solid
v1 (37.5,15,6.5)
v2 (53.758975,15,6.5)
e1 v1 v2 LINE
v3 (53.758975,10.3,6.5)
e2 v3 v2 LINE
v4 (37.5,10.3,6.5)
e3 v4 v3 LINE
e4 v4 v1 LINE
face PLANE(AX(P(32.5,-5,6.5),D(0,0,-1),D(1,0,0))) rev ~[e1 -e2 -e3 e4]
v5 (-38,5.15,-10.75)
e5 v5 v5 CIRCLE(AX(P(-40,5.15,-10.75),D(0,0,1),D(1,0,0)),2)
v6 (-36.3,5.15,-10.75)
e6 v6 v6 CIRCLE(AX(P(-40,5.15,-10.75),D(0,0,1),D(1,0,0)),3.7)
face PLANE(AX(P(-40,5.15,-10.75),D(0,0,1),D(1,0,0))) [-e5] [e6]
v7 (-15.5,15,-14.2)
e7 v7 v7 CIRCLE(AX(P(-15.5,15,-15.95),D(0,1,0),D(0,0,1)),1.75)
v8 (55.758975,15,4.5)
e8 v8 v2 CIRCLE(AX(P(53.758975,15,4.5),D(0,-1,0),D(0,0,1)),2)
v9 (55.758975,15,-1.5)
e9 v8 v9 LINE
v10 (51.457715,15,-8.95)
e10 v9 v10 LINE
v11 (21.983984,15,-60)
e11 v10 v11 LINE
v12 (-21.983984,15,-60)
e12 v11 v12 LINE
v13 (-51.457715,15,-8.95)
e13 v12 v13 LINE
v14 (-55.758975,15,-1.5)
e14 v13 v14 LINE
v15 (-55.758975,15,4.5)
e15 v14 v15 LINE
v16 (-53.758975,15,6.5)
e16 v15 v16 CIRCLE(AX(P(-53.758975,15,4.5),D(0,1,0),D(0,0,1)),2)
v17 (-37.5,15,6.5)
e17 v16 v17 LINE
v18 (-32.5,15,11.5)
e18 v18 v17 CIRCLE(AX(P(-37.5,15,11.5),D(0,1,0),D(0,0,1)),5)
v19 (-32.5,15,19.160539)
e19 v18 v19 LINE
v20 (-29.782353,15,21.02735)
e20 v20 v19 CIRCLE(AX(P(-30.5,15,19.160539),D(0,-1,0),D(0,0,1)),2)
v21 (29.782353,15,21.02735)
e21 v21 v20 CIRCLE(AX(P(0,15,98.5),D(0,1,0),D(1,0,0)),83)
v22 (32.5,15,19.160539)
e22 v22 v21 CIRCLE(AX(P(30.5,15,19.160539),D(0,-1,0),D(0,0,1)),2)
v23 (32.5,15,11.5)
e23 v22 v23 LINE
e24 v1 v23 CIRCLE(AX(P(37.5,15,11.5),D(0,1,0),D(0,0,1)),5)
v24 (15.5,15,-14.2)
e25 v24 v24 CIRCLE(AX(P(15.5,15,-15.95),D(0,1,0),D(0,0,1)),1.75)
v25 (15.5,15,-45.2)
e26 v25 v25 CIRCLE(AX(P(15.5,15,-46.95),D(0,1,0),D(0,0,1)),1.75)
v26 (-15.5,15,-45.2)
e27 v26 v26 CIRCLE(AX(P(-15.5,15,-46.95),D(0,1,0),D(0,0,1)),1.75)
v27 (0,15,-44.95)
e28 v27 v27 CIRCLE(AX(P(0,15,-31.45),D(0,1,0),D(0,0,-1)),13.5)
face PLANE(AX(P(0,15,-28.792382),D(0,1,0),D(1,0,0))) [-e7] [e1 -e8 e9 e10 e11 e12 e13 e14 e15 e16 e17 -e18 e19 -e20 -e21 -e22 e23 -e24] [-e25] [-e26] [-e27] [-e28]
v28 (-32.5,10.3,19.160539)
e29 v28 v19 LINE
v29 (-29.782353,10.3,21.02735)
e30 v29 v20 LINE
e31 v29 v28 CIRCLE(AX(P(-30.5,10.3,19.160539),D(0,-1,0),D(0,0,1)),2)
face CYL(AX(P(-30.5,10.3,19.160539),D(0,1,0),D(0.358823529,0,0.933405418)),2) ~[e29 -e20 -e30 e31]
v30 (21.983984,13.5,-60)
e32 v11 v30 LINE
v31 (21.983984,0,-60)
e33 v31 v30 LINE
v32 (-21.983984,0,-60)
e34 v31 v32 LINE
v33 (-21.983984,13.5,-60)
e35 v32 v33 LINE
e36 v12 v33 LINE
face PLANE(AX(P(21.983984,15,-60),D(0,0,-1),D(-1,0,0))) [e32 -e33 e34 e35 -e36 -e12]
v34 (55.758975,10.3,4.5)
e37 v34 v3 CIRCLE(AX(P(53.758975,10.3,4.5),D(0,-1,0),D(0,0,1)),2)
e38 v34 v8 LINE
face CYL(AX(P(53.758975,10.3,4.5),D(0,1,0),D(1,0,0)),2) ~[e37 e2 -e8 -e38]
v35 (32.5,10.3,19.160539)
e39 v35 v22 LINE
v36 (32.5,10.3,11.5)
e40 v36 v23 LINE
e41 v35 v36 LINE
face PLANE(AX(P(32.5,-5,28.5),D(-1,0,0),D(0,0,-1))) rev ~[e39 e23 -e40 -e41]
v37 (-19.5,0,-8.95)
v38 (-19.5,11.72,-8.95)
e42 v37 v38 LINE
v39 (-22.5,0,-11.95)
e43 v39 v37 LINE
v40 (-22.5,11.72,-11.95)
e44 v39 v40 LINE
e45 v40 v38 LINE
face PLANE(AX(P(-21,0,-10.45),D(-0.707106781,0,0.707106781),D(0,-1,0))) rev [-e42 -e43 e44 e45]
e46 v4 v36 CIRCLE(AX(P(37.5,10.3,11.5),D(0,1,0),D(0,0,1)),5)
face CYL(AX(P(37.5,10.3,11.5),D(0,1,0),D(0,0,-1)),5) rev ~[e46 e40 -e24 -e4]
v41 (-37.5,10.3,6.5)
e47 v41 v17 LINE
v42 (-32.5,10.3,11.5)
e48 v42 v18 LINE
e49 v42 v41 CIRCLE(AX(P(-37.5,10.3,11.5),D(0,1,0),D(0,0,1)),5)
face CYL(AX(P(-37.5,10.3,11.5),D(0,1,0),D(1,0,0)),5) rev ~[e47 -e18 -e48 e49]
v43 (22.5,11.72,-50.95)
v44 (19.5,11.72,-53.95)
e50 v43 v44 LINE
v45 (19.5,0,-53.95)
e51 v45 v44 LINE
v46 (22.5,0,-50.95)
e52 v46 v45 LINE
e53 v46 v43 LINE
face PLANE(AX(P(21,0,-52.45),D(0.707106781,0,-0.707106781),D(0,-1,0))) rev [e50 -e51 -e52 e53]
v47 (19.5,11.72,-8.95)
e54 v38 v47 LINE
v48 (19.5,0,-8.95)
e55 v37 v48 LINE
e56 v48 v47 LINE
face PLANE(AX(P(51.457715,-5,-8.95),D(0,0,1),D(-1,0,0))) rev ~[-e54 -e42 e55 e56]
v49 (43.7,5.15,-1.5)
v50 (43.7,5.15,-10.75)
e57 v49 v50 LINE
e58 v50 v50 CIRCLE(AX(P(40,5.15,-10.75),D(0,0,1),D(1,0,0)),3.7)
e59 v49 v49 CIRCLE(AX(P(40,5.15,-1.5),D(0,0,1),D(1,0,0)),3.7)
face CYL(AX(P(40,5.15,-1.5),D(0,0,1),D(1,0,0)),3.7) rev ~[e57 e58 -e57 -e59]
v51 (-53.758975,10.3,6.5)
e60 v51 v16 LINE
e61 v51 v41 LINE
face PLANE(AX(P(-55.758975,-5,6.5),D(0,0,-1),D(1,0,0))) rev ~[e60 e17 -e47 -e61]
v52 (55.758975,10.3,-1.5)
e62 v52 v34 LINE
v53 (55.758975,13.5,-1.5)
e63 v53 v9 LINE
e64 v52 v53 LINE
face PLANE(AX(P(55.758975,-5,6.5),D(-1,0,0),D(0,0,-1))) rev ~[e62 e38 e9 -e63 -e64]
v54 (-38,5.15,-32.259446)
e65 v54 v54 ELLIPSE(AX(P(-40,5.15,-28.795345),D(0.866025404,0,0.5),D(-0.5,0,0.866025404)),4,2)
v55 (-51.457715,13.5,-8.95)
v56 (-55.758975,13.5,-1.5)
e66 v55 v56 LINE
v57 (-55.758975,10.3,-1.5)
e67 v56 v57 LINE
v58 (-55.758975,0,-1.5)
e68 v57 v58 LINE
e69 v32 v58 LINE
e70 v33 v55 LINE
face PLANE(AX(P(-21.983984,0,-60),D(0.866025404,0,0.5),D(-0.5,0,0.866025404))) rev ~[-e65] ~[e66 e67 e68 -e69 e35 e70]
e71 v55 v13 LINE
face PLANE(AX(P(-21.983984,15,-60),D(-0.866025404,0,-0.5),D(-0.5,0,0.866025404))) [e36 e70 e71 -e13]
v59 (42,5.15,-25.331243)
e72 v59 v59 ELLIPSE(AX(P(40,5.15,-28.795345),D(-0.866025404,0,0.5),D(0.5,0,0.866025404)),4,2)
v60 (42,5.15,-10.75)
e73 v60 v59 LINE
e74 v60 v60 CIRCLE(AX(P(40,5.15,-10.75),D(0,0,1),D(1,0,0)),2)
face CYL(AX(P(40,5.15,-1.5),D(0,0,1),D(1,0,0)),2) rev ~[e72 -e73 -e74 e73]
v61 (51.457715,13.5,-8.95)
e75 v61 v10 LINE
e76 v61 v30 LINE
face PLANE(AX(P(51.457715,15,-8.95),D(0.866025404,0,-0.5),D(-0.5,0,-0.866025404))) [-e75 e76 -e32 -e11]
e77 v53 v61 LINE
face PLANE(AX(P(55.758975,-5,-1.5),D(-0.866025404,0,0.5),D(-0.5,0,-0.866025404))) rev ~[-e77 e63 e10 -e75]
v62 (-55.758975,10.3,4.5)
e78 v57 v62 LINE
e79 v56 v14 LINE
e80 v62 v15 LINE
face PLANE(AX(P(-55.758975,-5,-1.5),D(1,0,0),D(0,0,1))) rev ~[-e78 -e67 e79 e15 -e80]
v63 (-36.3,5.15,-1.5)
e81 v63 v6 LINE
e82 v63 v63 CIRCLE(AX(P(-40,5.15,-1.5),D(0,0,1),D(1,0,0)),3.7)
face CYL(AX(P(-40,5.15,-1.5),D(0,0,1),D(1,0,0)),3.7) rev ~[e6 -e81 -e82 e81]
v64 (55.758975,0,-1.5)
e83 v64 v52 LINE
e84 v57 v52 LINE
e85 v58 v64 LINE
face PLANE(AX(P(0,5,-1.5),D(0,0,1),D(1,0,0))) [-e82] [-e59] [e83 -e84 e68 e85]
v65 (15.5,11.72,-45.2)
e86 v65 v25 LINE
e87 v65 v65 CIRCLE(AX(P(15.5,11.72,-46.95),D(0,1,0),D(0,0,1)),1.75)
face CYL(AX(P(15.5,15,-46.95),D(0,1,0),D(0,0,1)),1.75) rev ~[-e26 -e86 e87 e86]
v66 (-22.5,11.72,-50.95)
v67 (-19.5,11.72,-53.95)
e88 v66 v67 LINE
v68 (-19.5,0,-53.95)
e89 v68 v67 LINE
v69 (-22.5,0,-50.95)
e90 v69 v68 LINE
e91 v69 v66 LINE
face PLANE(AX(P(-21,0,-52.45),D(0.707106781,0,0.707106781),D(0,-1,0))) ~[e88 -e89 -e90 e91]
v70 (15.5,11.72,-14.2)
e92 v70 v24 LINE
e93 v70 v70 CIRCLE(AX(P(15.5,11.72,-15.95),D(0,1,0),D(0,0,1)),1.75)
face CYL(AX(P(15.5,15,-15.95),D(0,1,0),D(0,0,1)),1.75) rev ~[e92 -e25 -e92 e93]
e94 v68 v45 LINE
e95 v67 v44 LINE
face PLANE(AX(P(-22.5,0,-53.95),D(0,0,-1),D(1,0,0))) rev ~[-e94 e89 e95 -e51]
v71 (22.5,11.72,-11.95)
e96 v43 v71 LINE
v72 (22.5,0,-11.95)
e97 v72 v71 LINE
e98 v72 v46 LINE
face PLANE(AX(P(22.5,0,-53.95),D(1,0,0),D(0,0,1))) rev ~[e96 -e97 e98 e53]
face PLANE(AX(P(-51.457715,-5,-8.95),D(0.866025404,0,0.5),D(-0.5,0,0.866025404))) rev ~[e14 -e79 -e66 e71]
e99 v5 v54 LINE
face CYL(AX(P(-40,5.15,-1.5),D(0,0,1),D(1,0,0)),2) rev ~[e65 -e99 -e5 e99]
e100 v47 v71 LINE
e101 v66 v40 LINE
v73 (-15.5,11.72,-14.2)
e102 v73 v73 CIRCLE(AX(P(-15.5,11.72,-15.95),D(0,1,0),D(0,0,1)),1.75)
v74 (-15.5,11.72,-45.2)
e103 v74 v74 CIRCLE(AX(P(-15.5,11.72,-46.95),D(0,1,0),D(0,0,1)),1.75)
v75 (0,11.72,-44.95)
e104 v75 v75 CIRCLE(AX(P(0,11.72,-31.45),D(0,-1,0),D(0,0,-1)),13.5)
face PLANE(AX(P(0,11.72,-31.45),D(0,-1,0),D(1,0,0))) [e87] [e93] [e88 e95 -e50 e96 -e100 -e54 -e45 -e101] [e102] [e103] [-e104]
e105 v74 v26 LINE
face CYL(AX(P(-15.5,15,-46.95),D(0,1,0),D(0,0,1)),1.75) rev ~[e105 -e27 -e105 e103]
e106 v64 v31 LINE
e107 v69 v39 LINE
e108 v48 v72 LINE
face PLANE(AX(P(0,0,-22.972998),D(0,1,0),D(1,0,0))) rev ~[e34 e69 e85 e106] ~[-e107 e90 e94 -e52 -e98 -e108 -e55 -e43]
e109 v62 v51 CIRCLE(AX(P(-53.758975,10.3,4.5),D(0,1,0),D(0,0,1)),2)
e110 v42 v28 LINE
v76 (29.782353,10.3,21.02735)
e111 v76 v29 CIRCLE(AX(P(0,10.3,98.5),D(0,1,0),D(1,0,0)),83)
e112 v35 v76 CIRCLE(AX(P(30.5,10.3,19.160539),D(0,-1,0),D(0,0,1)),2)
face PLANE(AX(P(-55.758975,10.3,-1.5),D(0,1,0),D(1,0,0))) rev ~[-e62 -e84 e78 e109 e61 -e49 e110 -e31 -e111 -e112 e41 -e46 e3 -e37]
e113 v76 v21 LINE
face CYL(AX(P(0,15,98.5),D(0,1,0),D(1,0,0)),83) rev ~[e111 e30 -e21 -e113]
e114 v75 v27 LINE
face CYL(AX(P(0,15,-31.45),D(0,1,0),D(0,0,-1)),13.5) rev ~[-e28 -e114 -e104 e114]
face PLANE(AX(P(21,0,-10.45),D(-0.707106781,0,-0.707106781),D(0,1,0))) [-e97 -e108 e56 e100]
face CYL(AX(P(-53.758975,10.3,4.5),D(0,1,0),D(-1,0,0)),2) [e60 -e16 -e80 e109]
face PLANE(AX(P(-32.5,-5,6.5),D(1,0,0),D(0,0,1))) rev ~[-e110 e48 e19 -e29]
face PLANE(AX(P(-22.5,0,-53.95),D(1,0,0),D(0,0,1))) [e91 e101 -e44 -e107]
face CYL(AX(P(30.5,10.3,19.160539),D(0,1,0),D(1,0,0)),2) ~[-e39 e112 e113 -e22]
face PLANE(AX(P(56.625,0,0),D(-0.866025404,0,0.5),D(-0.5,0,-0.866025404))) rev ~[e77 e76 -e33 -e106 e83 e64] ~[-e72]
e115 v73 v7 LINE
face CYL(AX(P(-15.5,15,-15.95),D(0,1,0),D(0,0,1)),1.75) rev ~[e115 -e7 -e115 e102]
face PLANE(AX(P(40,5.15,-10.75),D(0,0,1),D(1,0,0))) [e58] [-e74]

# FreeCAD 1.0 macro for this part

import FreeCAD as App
import Part
import Sketcher
Q = App.Units.Quantity


def edges_at(feature, points):
    """Names of the edges that pass closest to the given points."""
    edges = feature.Shape.Edges
    near = lambda p: min(range(len(edges)), key=lambda i: edges[i].distToShape(Part.Vertex(*p))[0])
    return sorted({f"Edge{near(p) + 1}" for p in points})

doc = App.newDocument("Part")
body = doc.addObject("PartDesign::Body", "Body")

# Sketch on XZ plane
sketch1 = doc.addObject("Sketcher::SketchObject", "Sketch")
body.addObject(sketch1)
sketch1.AttachmentSupport = (doc.XZ_Plane, [""])
sketch1.MapMode = "FlatFace"
sketch1.addGeometry(Part.LineSegment(App.Vector(-57, 0, 0), App.Vector(57, 0, 0)), False)
sketch1.addGeometry(Part.LineSegment(App.Vector(57, 0, 0), App.Vector(22, -60, 0)), False)
sketch1.addGeometry(Part.LineSegment(App.Vector(22, -60, 0), App.Vector(-22, -60, 0)), False)
sketch1.addGeometry(Part.LineSegment(App.Vector(-22, -60, 0), App.Vector(-57, 0, 0)), False)
sketch1.addConstraint(Sketcher.Constraint("Coincident", 0, 2, 1, 1))
sketch1.addConstraint(Sketcher.Constraint("Coincident", 1, 2, 2, 1))
sketch1.addConstraint(Sketcher.Constraint("Coincident", 2, 2, 3, 1))
sketch1.addConstraint(Sketcher.Constraint("Coincident", 3, 2, 0, 1))
sketch1.addConstraint(Sketcher.Constraint("Horizontal", 0))
sketch1.addConstraint(Sketcher.Constraint("Horizontal", 2))
sketch1.addConstraint(Sketcher.Constraint("Symmetric", 0, 2, 3, 2, -1, 1))
sketch1.addConstraint(Sketcher.Constraint("Equal", 1, 3))
sketch1.addConstraint(Sketcher.Constraint("Angle", 1, Q("-120 deg")))
sketch1.addConstraint(Sketcher.Constraint("DistanceY", 1, 2, -1, 1, Q("60 mm")))
sketch1.addConstraint(Sketcher.Constraint("DistanceX", 0, 1, 0, 2, Q("113.25 mm")))
pad1 = doc.addObject("PartDesign::Pad", "Pad")
body.addObject(pad1)
pad1.Profile = sketch1
pad1.Length = 13.5
pad1.Reversed = True

# Sketch on XZ plane
sketch2 = doc.addObject("Sketcher::SketchObject", "Sketch001")
body.addObject(sketch2)
sketch2.AttachmentSupport = (doc.XZ_Plane, [""])
sketch2.MapMode = "FlatFace"
sketch2.addGeometry(Part.LineSegment(App.Vector(-22, -9, 0), App.Vector(-22, -54, 0)), False)
sketch2.addGeometry(Part.LineSegment(App.Vector(-22, -54, 0), App.Vector(22, -54, 0)), False)
sketch2.addGeometry(Part.LineSegment(App.Vector(22, -54, 0), App.Vector(22, -9, 0)), False)
sketch2.addGeometry(Part.LineSegment(App.Vector(22, -9, 0), App.Vector(-22, -9, 0)), False)
sketch2.addConstraint(Sketcher.Constraint("Coincident", 0, 2, 1, 1))
sketch2.addConstraint(Sketcher.Constraint("Coincident", 1, 2, 2, 1))
sketch2.addConstraint(Sketcher.Constraint("Coincident", 2, 2, 3, 1))
sketch2.addConstraint(Sketcher.Constraint("Coincident", 3, 2, 0, 1))
sketch2.addConstraint(Sketcher.Constraint("Vertical", 0))
sketch2.addConstraint(Sketcher.Constraint("Horizontal", 1))
sketch2.addConstraint(Sketcher.Constraint("Vertical", 2))
sketch2.addConstraint(Sketcher.Constraint("Horizontal", 3))
sketch2.addConstraint(Sketcher.Constraint("Equal", 3, 0))
sketch2.addConstraint(Sketcher.Constraint("DistanceX", 1, 1, 1, 2, Q("45 mm")))
sketch2.addConstraint(Sketcher.Constraint("DistanceX", 0, 2, -1, 1, Q("22.5 mm")))
sketch2.addConstraint(Sketcher.Constraint("DistanceY", 0, 2, -1, 1, Q("53.95 mm")))
pocket1 = doc.addObject("PartDesign::Pocket", "Pocket")
body.addObject(pocket1)
pocket1.Profile = sketch2
pocket1.Length = 11.72

# Sketch on XZ plane
sketch3 = doc.addObject("Sketcher::SketchObject", "Sketch002")
body.addObject(sketch3)
sketch3.AttachmentSupport = (doc.XZ_Plane, [""])
sketch3.MapMode = "FlatFace"
sketch3.AttachmentOffset = App.Placement(App.Vector(0, 0, -11.72), App.Rotation())
sketch3.addGeometry(Part.Circle(App.Vector(0, -31, 0), App.Vector(0, 0, 1), 14), False)
sketch3.addConstraint(Sketcher.Constraint("PointOnObject", 0, 3, -2))
sketch3.addConstraint(Sketcher.Constraint("Diameter", 0, Q("27 mm")))
sketch3.addConstraint(Sketcher.Constraint("DistanceY", 0, 3, -1, 1, Q("31.45 mm")))
pocket2 = doc.addObject("PartDesign::Pocket", "Pocket001")
body.addObject(pocket2)
pocket2.Profile = sketch3
pocket2.Type = "ThroughAll"
doc.recompute()

chamfer = doc.addObject("PartDesign::Chamfer", "Chamfer")
body.addObject(chamfer)
chamfer.Base = (pocket2, edges_at(pocket2, [
    (-22.5, 5.86, -8.95),
    (-22.5, 5.86, -53.95),
    (22.5, 5.86, -53.95),
    (22.5, 5.86, -8.95),
]))
chamfer.Size = 3

# Sketch on XZ plane
sketch4 = doc.addObject("Sketcher::SketchObject", "Sketch003")
body.addObject(sketch4)
sketch4.AttachmentSupport = (doc.XZ_Plane, [""])
sketch4.MapMode = "FlatFace"
sketch4.AttachmentOffset = App.Placement(App.Vector(0, 0, -13.5), App.Rotation())
sketch4.addGeometry(Part.LineSegment(App.Vector(-56.6, -1.5, 0), App.Vector(-56.6, 0, 0)), False)
sketch4.addGeometry(Part.LineSegment(App.Vector(-56.6, 0, 0), App.Vector(56.6, 0, 0)), False)
sketch4.addGeometry(Part.LineSegment(App.Vector(56.6, 0, 0), App.Vector(56.6, -1.5, 0)), False)
sketch4.addGeometry(Part.LineSegment(App.Vector(56.6, -1.5, 0), App.Vector(-56.6, -1.5, 0)), False)
sketch4.addConstraint(Sketcher.Constraint("Coincident", 0, 2, 1, 1))
sketch4.addConstraint(Sketcher.Constraint("Coincident", 1, 2, 2, 1))
sketch4.addConstraint(Sketcher.Constraint("Coincident", 2, 2, 3, 1))
sketch4.addConstraint(Sketcher.Constraint("Coincident", 3, 2, 0, 1))
sketch4.addConstraint(Sketcher.Constraint("Vertical", 0))
sketch4.addConstraint(Sketcher.Constraint("Horizontal", 1))
sketch4.addConstraint(Sketcher.Constraint("Vertical", 2))
sketch4.addConstraint(Sketcher.Constraint("Horizontal", 3))
sketch4.addConstraint(Sketcher.Constraint("Symmetric", 0, 2, 1, 2, -1, 1))
sketch4.addConstraint(Sketcher.Constraint("DistanceY", 0, 1, 0, 2, Q("1.5 mm")))
sketch4.addConstraint(Sketcher.Constraint("DistanceX", 1, 1, 1, 2, Q("113.25 mm")))
pocket3 = doc.addObject("PartDesign::Pocket", "Pocket002")
body.addObject(pocket3)
pocket3.Profile = sketch4
pocket3.Type = "ThroughAll"
pocket3.Reversed = True

# Sketch on XZ plane
sketch5 = doc.addObject("Sketcher::SketchObject", "Sketch004")
body.addObject(sketch5)
sketch5.AttachmentSupport = (doc.XZ_Plane, [""])
sketch5.MapMode = "FlatFace"
sketch5.AttachmentOffset = App.Placement(App.Vector(0, 0, -13.5), App.Rotation())
sketch5.addGeometry(Part.Circle(App.Vector(15.5, -47, 0), App.Vector(0, 0, 1), 1.8), False)
sketch5.addGeometry(Part.Circle(App.Vector(15.5, -15.9, 0), App.Vector(0, 0, 1), 1.8), False)
sketch5.addGeometry(Part.Circle(App.Vector(-15.5, -15.9, 0), App.Vector(0, 0, 1), 1.8), False)
sketch5.addGeometry(Part.Circle(App.Vector(-15.5, -47, 0), App.Vector(0, 0, 1), 1.8), False)
sketch5.addConstraint(Sketcher.Constraint("Equal", 0, 1))
sketch5.addConstraint(Sketcher.Constraint("Equal", 1, 2))
sketch5.addConstraint(Sketcher.Constraint("Equal", 2, 3))
sketch5.addConstraint(Sketcher.Constraint("Symmetric", 1, 3, 2, 3, -2))
sketch5.addConstraint(Sketcher.Constraint("Symmetric", 0, 3, 3, 3, -2))
sketch5.addConstraint(Sketcher.Constraint("Vertical", 0, 3, 1, 3))
sketch5.addConstraint(Sketcher.Constraint("Diameter", 0, Q("3.5 mm")))
sketch5.addConstraint(Sketcher.Constraint("DistanceY", 0, 3, 1, 3, Q("31 mm")))
sketch5.addConstraint(Sketcher.Constraint("DistanceX", 2, 3, 1, 3, Q("31 mm")))
sketch5.addConstraint(Sketcher.Constraint("DistanceY", 0, 3, -1, 1, Q("46.95 mm")))
pocket4 = doc.addObject("PartDesign::Pocket", "Pocket003")
body.addObject(pocket4)
pocket4.Profile = sketch5
pocket4.Type = "ThroughAll"
pocket4.Reversed = True

# Sketch on XZ plane
sketch6 = doc.addObject("Sketcher::SketchObject", "Sketch005")
body.addObject(sketch6)
sketch6.AttachmentSupport = (doc.XZ_Plane, [""])
sketch6.MapMode = "FlatFace"
sketch6.AttachmentOffset = App.Placement(App.Vector(0, 0, 5), App.Rotation())
sketch6.addGeometry(Part.LineSegment(App.Vector(-51, -9, 0), App.Vector(51, -9, 0)), False)
sketch6.addGeometry(Part.LineSegment(App.Vector(51, -9, 0), App.Vector(56, -2, 0)), False)
sketch6.addGeometry(Part.LineSegment(App.Vector(56, -2, 0), App.Vector(56, 6, 0)), False)
sketch6.addGeometry(Part.LineSegment(App.Vector(56, 6, 0), App.Vector(32, 6, 0)), False)
sketch6.addGeometry(Part.LineSegment(App.Vector(32, 6, 0), App.Vector(32, 28, 0)), False)
sketch6.addGeometry(Part.LineSegment(App.Vector(32, 28, 0), App.Vector(-32, 28, 0)), False)
sketch6.addGeometry(Part.LineSegment(App.Vector(-32, 28, 0), App.Vector(-32, 6, 0)), False)
sketch6.addGeometry(Part.LineSegment(App.Vector(-32, 6, 0), App.Vector(-56, 6, 0)), False)
sketch6.addGeometry(Part.LineSegment(App.Vector(-56, 6, 0), App.Vector(-56, -2, 0)), False)
sketch6.addGeometry(Part.LineSegment(App.Vector(-56, -2, 0), App.Vector(-51, -9, 0)), False)
sketch6.addConstraint(Sketcher.Constraint("Coincident", 0, 2, 1, 1))
sketch6.addConstraint(Sketcher.Constraint("Coincident", 1, 2, 2, 1))
sketch6.addConstraint(Sketcher.Constraint("Coincident", 2, 2, 3, 1))
sketch6.addConstraint(Sketcher.Constraint("Coincident", 3, 2, 4, 1))
sketch6.addConstraint(Sketcher.Constraint("Coincident", 4, 2, 5, 1))
sketch6.addConstraint(Sketcher.Constraint("Coincident", 5, 2, 6, 1))
sketch6.addConstraint(Sketcher.Constraint("Coincident", 6, 2, 7, 1))
sketch6.addConstraint(Sketcher.Constraint("Coincident", 7, 2, 8, 1))
sketch6.addConstraint(Sketcher.Constraint("Coincident", 8, 2, 9, 1))
sketch6.addConstraint(Sketcher.Constraint("Coincident", 9, 2, 0, 1))
sketch6.addConstraint(Sketcher.Constraint("Horizontal", 0))
sketch6.addConstraint(Sketcher.Constraint("Vertical", 2))
sketch6.addConstraint(Sketcher.Constraint("Horizontal", 3))
sketch6.addConstraint(Sketcher.Constraint("Vertical", 4))
sketch6.addConstraint(Sketcher.Constraint("Horizontal", 5))
sketch6.addConstraint(Sketcher.Constraint("Vertical", 6))
sketch6.addConstraint(Sketcher.Constraint("Horizontal", 7))
sketch6.addConstraint(Sketcher.Constraint("Vertical", 8))
sketch6.addConstraint(Sketcher.Constraint("Symmetric", 3, 2, 6, 2, -2))
sketch6.addConstraint(Sketcher.Constraint("Symmetric", 1, 2, 8, 2, -2))
sketch6.addConstraint(Sketcher.Constraint("Equal", 1, 9))
sketch6.addConstraint(Sketcher.Constraint("DistanceX", 5, 2, 5, 1, Q("65 mm")))
sketch6.addConstraint(Sketcher.Constraint("DistanceY", 2, 1, 2, 2, Q("8 mm")))
sketch6.addConstraint(Sketcher.Constraint("DistanceY", 4, 1, 4, 2, Q("22 mm")))
sketch6.addConstraint(Sketcher.Constraint("Angle", 1, Q("60 deg")))
sketch6.addConstraint(Sketcher.Constraint("DistanceY", 1, 2, -1, 1, Q("1.5 mm")))
sketch6.addConstraint(Sketcher.Constraint("DistanceY", 0, 2, -1, 1, Q("8.95 mm")))
sketch6.addConstraint(Sketcher.Constraint("DistanceX", 0, 1, 0, 2, Q("102.91543 mm")))
pad2 = doc.addObject("PartDesign::Pad", "Pad001")
body.addObject(pad2)
pad2.Profile = sketch6
pad2.Length = 20
pad2.Reversed = True

# Sketch on XY plane
sketch7 = doc.addObject("Sketcher::SketchObject", "Sketch006")
body.addObject(sketch7)
sketch7.AttachmentSupport = (doc.XY_Plane, [""])
sketch7.MapMode = "FlatFace"
sketch7.AttachmentOffset = App.Placement(App.Vector(0, 0, -1.5), App.Rotation())
sketch7.addGeometry(Part.LineSegment(App.Vector(-56, 10, 0), App.Vector(-56, 0, 0)), False)
sketch7.addGeometry(Part.LineSegment(App.Vector(-56, 0, 0), App.Vector(56, 0, 0)), False)
sketch7.addGeometry(Part.LineSegment(App.Vector(56, 0, 0), App.Vector(56, 10, 0)), False)
sketch7.addGeometry(Part.LineSegment(App.Vector(56, 10, 0), App.Vector(-56, 10, 0)), False)
sketch7.addConstraint(Sketcher.Constraint("Coincident", 0, 2, 1, 1))
sketch7.addConstraint(Sketcher.Constraint("Coincident", 1, 2, 2, 1))
sketch7.addConstraint(Sketcher.Constraint("Coincident", 2, 2, 3, 1))
sketch7.addConstraint(Sketcher.Constraint("Coincident", 3, 2, 0, 1))
sketch7.addConstraint(Sketcher.Constraint("Vertical", 0))
sketch7.addConstraint(Sketcher.Constraint("Horizontal", 1))
sketch7.addConstraint(Sketcher.Constraint("Vertical", 2))
sketch7.addConstraint(Sketcher.Constraint("Horizontal", 3))
sketch7.addConstraint(Sketcher.Constraint("DistanceY", 0, 2, 0, 1, Q("10.6 mm")))
sketch7.addConstraint(Sketcher.Constraint("DistanceY", 0, 2, -1, 1, Q("0.3 mm")))
sketch7.addConstraint(Sketcher.Constraint("DistanceX", 1, 1, 1, 2, Q("111.517949 mm")))
sketch7.addConstraint(Sketcher.Constraint("DistanceX", 0, 2, -1, 1, Q("55.758975 mm")))
pocket5 = doc.addObject("PartDesign::Pocket", "Pocket004")
body.addObject(pocket5)
pocket5.Profile = sketch7
pocket5.Length = 30
pocket5.Reversed = True

# Sketch on XY plane
sketch8 = doc.addObject("Sketcher::SketchObject", "Sketch007")
body.addObject(sketch8)
sketch8.AttachmentSupport = (doc.XY_Plane, [""])
sketch8.MapMode = "FlatFace"
sketch8.AttachmentOffset = App.Placement(App.Vector(0, 0, -1.5), App.Rotation())
sketch8.addGeometry(Part.Circle(App.Vector(-40, 5.2, 0), App.Vector(0, 0, 1), 2), False)
sketch8.addGeometry(Part.Circle(App.Vector(40, 5.2, 0), App.Vector(0, 0, 1), 2), False)
sketch8.addConstraint(Sketcher.Constraint("Equal", 0, 1))
sketch8.addConstraint(Sketcher.Constraint("Symmetric", 0, 3, 1, 3, -2))
sketch8.addConstraint(Sketcher.Constraint("Diameter", 0, Q("4 mm")))
sketch8.addConstraint(Sketcher.Constraint("DistanceX", 0, 3, -1, 1, Q("40 mm")))
sketch8.addConstraint(Sketcher.Constraint("DistanceY", -1, 1, 0, 3, Q("5.15 mm")))
pocket6 = doc.addObject("PartDesign::Pocket", "Pocket005")
body.addObject(pocket6)
pocket6.Profile = sketch8
pocket6.Type = "ThroughAll"

# Sketch on XY plane
sketch9 = doc.addObject("Sketcher::SketchObject", "Sketch008")
body.addObject(sketch9)
sketch9.AttachmentSupport = (doc.XY_Plane, [""])
sketch9.MapMode = "FlatFace"
sketch9.AttachmentOffset = App.Placement(App.Vector(0, 0, -1.5), App.Rotation())
sketch9.addGeometry(Part.Circle(App.Vector(-40, 5.2, 0), App.Vector(0, 0, 1), 3.7), False)
sketch9.addGeometry(Part.Circle(App.Vector(40, 5.2, 0), App.Vector(0, 0, 1), 3.7), False)
sketch9.addConstraint(Sketcher.Constraint("Equal", 0, 1))
sketch9.addConstraint(Sketcher.Constraint("Symmetric", 0, 3, 1, 3, -2))
sketch9.addConstraint(Sketcher.Constraint("Diameter", 0, Q("7.4 mm")))
sketch9.addConstraint(Sketcher.Constraint("DistanceX", 0, 3, -1, 1, Q("40 mm")))
sketch9.addConstraint(Sketcher.Constraint("DistanceY", -1, 1, 0, 3, Q("5.15 mm")))
pocket7 = doc.addObject("PartDesign::Pocket", "Pocket006")
body.addObject(pocket7)
pocket7.Profile = sketch9
pocket7.Length = 9.25

# Sketch on XZ plane
sketch10 = doc.addObject("Sketcher::SketchObject", "Sketch009")
body.addObject(sketch10)
sketch10.AttachmentSupport = (doc.XZ_Plane, [""])
sketch10.MapMode = "FlatFace"
sketch10.AttachmentOffset = App.Placement(App.Vector(0, 0, -15), App.Rotation())
sketch10.addGeometry(Part.Circle(App.Vector(0, 98, 0), App.Vector(0, 0, 1), 83), False)
sketch10.addConstraint(Sketcher.Constraint("PointOnObject", 0, 3, -2))
sketch10.addConstraint(Sketcher.Constraint("Diameter", 0, Q("166 mm")))
sketch10.addConstraint(Sketcher.Constraint("DistanceY", -1, 1, 0, 3, Q("98.5 mm")))
pocket8 = doc.addObject("PartDesign::Pocket", "Pocket007")
body.addObject(pocket8)
pocket8.Profile = sketch10
pocket8.Length = 9.25
pocket8.Reversed = True
doc.recompute()

fillet = doc.addObject("PartDesign::Fillet", "Fillet")
body.addObject(fillet)
fillet.Base = (pocket8, edges_at(pocket8, [
    (-32.5, 12.65, 6.5),
    (32.5, 12.65, 6.5),
    (32.5, -2.65, 6.5),
    (-32.5, -2.65, 6.5),
]))
fillet.Radius = 5

# Sketch on XZ plane
sketch11 = doc.addObject("Sketcher::SketchObject", "Sketch010")
body.addObject(sketch11)
sketch11.AttachmentSupport = (doc.XZ_Plane, [""])
sketch11.MapMode = "FlatFace"
sketch11.AttachmentOffset = App.Placement(App.Vector(0, 0, 5), App.Rotation())
sketch11.addGeometry(Part.LineSegment(App.Vector(-32, 28, 0), App.Vector(-32, 20, 0)), False)
sketch11.addGeometry(Part.LineSegment(App.Vector(-32, 20, 0), App.Vector(32, 20, 0)), False)
sketch11.addGeometry(Part.LineSegment(App.Vector(32, 20, 0), App.Vector(32, 28, 0)), False)
sketch11.addGeometry(Part.LineSegment(App.Vector(32, 28, 0), App.Vector(-32, 28, 0)), False)
sketch11.addConstraint(Sketcher.Constraint("Coincident", 0, 2, 1, 1))
sketch11.addConstraint(Sketcher.Constraint("Coincident", 1, 2, 2, 1))
sketch11.addConstraint(Sketcher.Constraint("Coincident", 2, 2, 3, 1))
sketch11.addConstraint(Sketcher.Constraint("Coincident", 3, 2, 0, 1))
sketch11.addConstraint(Sketcher.Constraint("Vertical", 0))
sketch11.addConstraint(Sketcher.Constraint("Horizontal", 1))
sketch11.addConstraint(Sketcher.Constraint("Vertical", 2))
sketch11.addConstraint(Sketcher.Constraint("Horizontal", 3))
sketch11.addConstraint(Sketcher.Constraint("DistanceX", 1, 1, 1, 2, Q("65 mm")))
sketch11.addConstraint(Sketcher.Constraint("DistanceY", 0, 2, 0, 1, Q("8 mm")))
sketch11.addConstraint(Sketcher.Constraint("DistanceX", 0, 2, -1, 1, Q("32.5 mm")))
sketch11.addConstraint(Sketcher.Constraint("DistanceY", -1, 1, 0, 2, Q("20.5 mm")))
pocket9 = doc.addObject("PartDesign::Pocket", "Pocket008")
body.addObject(pocket9)
pocket9.Profile = sketch11
pocket9.Length = 9.25
doc.recompute()

fillet2 = doc.addObject("PartDesign::Fillet", "Fillet001")
body.addObject(fillet2)
fillet2.Base = (pocket9, edges_at(pocket9, [
    (-55.759, 12.65, 6.5),
    (55.759, 12.65, 6.5),
    (-32.5, 12.65, 22.128),
    (32.5, 12.65, 22.128),
]))
fillet2.Radius = 2

# Sketch on XZ plane
sketch12 = doc.addObject("Sketcher::SketchObject", "Sketch011")
body.addObject(sketch12)
sketch12.AttachmentSupport = (doc.XZ_Plane, [""])
sketch12.MapMode = "FlatFace"
sketch12.AttachmentOffset = App.Placement(App.Vector(0, 0, 5), App.Rotation())
sketch12.addGeometry(Part.LineSegment(App.Vector(-56, 20, 0), App.Vector(-56, 6, 0)), False)
sketch12.addGeometry(Part.LineSegment(App.Vector(-56, 6, 0), App.Vector(-32, 6, 0)), False)
sketch12.addGeometry(Part.LineSegment(App.Vector(-32, 6, 0), App.Vector(-32, 20, 0)), False)
sketch12.addGeometry(Part.LineSegment(App.Vector(-32, 20, 0), App.Vector(-56, 20, 0)), False)
sketch12.addGeometry(Part.LineSegment(App.Vector(32, 20, 0), App.Vector(32, 6, 0)), False)
sketch12.addGeometry(Part.LineSegment(App.Vector(32, 6, 0), App.Vector(56, 6, 0)), False)
sketch12.addGeometry(Part.LineSegment(App.Vector(56, 6, 0), App.Vector(56, 20, 0)), False)
sketch12.addGeometry(Part.LineSegment(App.Vector(56, 20, 0), App.Vector(32, 20, 0)), False)
sketch12.addConstraint(Sketcher.Constraint("Coincident", 0, 2, 1, 1))
sketch12.addConstraint(Sketcher.Constraint("Coincident", 1, 2, 2, 1))
sketch12.addConstraint(Sketcher.Constraint("Coincident", 2, 2, 3, 1))
sketch12.addConstraint(Sketcher.Constraint("Coincident", 3, 2, 0, 1))
sketch12.addConstraint(Sketcher.Constraint("Coincident", 4, 2, 5, 1))
sketch12.addConstraint(Sketcher.Constraint("Coincident", 5, 2, 6, 1))
sketch12.addConstraint(Sketcher.Constraint("Coincident", 6, 2, 7, 1))
sketch12.addConstraint(Sketcher.Constraint("Coincident", 7, 2, 4, 1))
sketch12.addConstraint(Sketcher.Constraint("Vertical", 0))
sketch12.addConstraint(Sketcher.Constraint("Horizontal", 1))
sketch12.addConstraint(Sketcher.Constraint("Vertical", 2))
sketch12.addConstraint(Sketcher.Constraint("Horizontal", 3))
sketch12.addConstraint(Sketcher.Constraint("Vertical", 4))
sketch12.addConstraint(Sketcher.Constraint("Horizontal", 5))
sketch12.addConstraint(Sketcher.Constraint("Vertical", 6))
sketch12.addConstraint(Sketcher.Constraint("Horizontal", 7))
sketch12.addConstraint(Sketcher.Constraint("Symmetric", 1, 2, 4, 2, -2))
sketch12.addConstraint(Sketcher.Constraint("Symmetric", 3, 2, 6, 2, -2))
sketch12.addConstraint(Sketcher.Constraint("DistanceY", 0, 2, 0, 1, Q("14 mm")))
sketch12.addConstraint(Sketcher.Constraint("DistanceX", 1, 2, 4, 2, Q("65 mm")))
sketch12.addConstraint(Sketcher.Constraint("DistanceY", -1, 1, 0, 2, Q("6.5 mm")))
sketch12.addConstraint(Sketcher.Constraint("DistanceX", 1, 1, 1, 2, Q("23.258975 mm")))
pad3 = doc.addObject("PartDesign::Pad", "Pad002")
body.addObject(pad3)
pad3.Profile = sketch12
pad3.Length = 4.7
pad3.Reversed = True
doc.recompute()

fillet3 = doc.addObject("PartDesign::Fillet", "Fillet002")
body.addObject(fillet3)
fillet3.Base = (pad3, edges_at(pad3, [(-55.759, -2.65, 20.5), (55.759, -2.65, 20.5)]))
fillet3.Radius = 5

# Sketch on XZ plane
sketch13 = doc.addObject("Sketcher::SketchObject", "Sketch012")
body.addObject(sketch13)
sketch13.AttachmentSupport = (doc.XZ_Plane, [""])
sketch13.MapMode = "FlatFace"
sketch13.AttachmentOffset = App.Placement(App.Vector(0, 0, -15), App.Rotation())
sketch13.addGeometry(Part.LineSegment(App.Vector(-51.5, -8.9, 0), App.Vector(51.5, -8.9, 0)), False)
sketch13.addGeometry(Part.LineSegment(App.Vector(51.5, -8.9, 0), App.Vector(22, -60, 0)), False)
sketch13.addGeometry(Part.LineSegment(App.Vector(22, -60, 0), App.Vector(-22, -60, 0)), False)
sketch13.addGeometry(Part.LineSegment(App.Vector(-22, -60, 0), App.Vector(-51.5, -8.9, 0)), False)
sketch13.addGeometry(Part.Circle(App.Vector(-15.5, -15.9, 0), App.Vector(0, 0, 1), 1.8), False)
sketch13.addGeometry(Part.Circle(App.Vector(15.5, -15.9, 0), App.Vector(0, 0, 1), 1.8), False)
sketch13.addGeometry(Part.Circle(App.Vector(-15.5, -47, 0), App.Vector(0, 0, 1), 1.8), False)
sketch13.addGeometry(Part.Circle(App.Vector(0, -31.4, 0), App.Vector(0, 0, 1), 13.5), False)
sketch13.addGeometry(Part.Circle(App.Vector(15.5, -47, 0), App.Vector(0, 0, 1), 1.8), False)
sketch13.addConstraint(Sketcher.Constraint("Coincident", 0, 2, 1, 1))
sketch13.addConstraint(Sketcher.Constraint("Coincident", 1, 2, 2, 1))
sketch13.addConstraint(Sketcher.Constraint("Coincident", 2, 2, 3, 1))
sketch13.addConstraint(Sketcher.Constraint("Coincident", 3, 2, 0, 1))
sketch13.addConstraint(Sketcher.Constraint("Horizontal", 0))
sketch13.addConstraint(Sketcher.Constraint("Horizontal", 2))
sketch13.addConstraint(Sketcher.Constraint("Equal", 4, 5))
sketch13.addConstraint(Sketcher.Constraint("Equal", 5, 6))
sketch13.addConstraint(Sketcher.Constraint("Equal", 6, 8))
sketch13.addConstraint(Sketcher.Constraint("Symmetric", 4, 3, 5, 3, -2))
sketch13.addConstraint(Sketcher.Constraint("Symmetric", 6, 3, 8, 3, -2))
sketch13.addConstraint(Sketcher.Constraint("PointOnObject", 7, 3, -2))
sketch13.addConstraint(Sketcher.Constraint("Vertical", 4, 3, 6, 3))
sketch13.addConstraint(Sketcher.Constraint("Equal", 1, 3))
sketch13.addConstraint(Sketcher.Constraint("Diameter", 7, Q("27 mm")))
sketch13.addConstraint(Sketcher.Constraint("Diameter", 4, Q("3.5 mm")))
sketch13.addConstraint(Sketcher.Constraint("Angle", 1, Q("-120 deg")))
sketch13.addConstraint(Sketcher.Constraint("DistanceY", 1, 2, -1, 1, Q("60 mm")))
sketch13.addConstraint(Sketcher.Constraint("DistanceX", 4, 3, 5, 3, Q("31 mm")))
sketch13.addConstraint(Sketcher.Constraint("DistanceY", 6, 3, 4, 3, Q("31 mm")))
sketch13.addConstraint(Sketcher.Constraint("DistanceY", 5, 3, 0, 2, Q("7 mm")))
sketch13.addConstraint(Sketcher.Constraint("DistanceY", 7, 3, 4, 3, Q("15.5 mm")))
sketch13.addConstraint(Sketcher.Constraint("DistanceY", 4, 3, -1, 1, Q("15.95 mm")))
sketch13.addConstraint(Sketcher.Constraint("DistanceX", 0, 1, 0, 2, Q("102.91543 mm")))
sketch13.addConstraint(Sketcher.Constraint("DistanceX", -1, 1, 0, 2, Q("51.457715 mm")))
pad4 = doc.addObject("PartDesign::Pad", "Pad003")
body.addObject(pad4)
pad4.Profile = sketch13
pad4.Length = 1.5

# Sketch on XZ plane
sketch14 = doc.addObject("Sketcher::SketchObject", "Sketch013")
body.addObject(sketch14)
sketch14.AttachmentSupport = (doc.XZ_Plane, [""])
sketch14.MapMode = "FlatFace"
sketch14.AttachmentOffset = App.Placement(App.Vector(0, 0, 5), App.Rotation())
sketch14.addGeometry(Part.LineSegment(App.Vector(-77, 34, 0), App.Vector(-77, -16, 0)), False)
sketch14.addGeometry(Part.LineSegment(App.Vector(-77, -16, 0), App.Vector(76, -16, 0)), False)
sketch14.addGeometry(Part.LineSegment(App.Vector(76, -16, 0), App.Vector(76, 34, 0)), False)
sketch14.addGeometry(Part.LineSegment(App.Vector(76, 34, 0), App.Vector(-77, 34, 0)), False)
sketch14.addConstraint(Sketcher.Constraint("Coincident", 0, 2, 1, 1))
sketch14.addConstraint(Sketcher.Constraint("Coincident", 1, 2, 2, 1))
sketch14.addConstraint(Sketcher.Constraint("Coincident", 2, 2, 3, 1))
sketch14.addConstraint(Sketcher.Constraint("Coincident", 3, 2, 0, 1))
sketch14.addConstraint(Sketcher.Constraint("Vertical", 0))
sketch14.addConstraint(Sketcher.Constraint("Horizontal", 1))
sketch14.addConstraint(Sketcher.Constraint("Vertical", 2))
sketch14.addConstraint(Sketcher.Constraint("Horizontal", 3))
sketch14.addConstraint(Sketcher.Constraint("DistanceX", 1, 1, 1, 2, Q("153.260868 mm")))
sketch14.addConstraint(Sketcher.Constraint("DistanceY", 0, 2, 0, 1, Q("50.841882 mm")))
sketch14.addConstraint(Sketcher.Constraint("DistanceX", 0, 2, -1, 1, Q("77.383032 mm")))
sketch14.addConstraint(Sketcher.Constraint("DistanceY", 0, 2, -1, 1, Q("16.383739 mm")))
pocket10 = doc.addObject("PartDesign::Pocket", "Pocket009")
body.addObject(pocket10)
pocket10.Profile = sketch14
pocket10.Length = 5

doc.recompute()
